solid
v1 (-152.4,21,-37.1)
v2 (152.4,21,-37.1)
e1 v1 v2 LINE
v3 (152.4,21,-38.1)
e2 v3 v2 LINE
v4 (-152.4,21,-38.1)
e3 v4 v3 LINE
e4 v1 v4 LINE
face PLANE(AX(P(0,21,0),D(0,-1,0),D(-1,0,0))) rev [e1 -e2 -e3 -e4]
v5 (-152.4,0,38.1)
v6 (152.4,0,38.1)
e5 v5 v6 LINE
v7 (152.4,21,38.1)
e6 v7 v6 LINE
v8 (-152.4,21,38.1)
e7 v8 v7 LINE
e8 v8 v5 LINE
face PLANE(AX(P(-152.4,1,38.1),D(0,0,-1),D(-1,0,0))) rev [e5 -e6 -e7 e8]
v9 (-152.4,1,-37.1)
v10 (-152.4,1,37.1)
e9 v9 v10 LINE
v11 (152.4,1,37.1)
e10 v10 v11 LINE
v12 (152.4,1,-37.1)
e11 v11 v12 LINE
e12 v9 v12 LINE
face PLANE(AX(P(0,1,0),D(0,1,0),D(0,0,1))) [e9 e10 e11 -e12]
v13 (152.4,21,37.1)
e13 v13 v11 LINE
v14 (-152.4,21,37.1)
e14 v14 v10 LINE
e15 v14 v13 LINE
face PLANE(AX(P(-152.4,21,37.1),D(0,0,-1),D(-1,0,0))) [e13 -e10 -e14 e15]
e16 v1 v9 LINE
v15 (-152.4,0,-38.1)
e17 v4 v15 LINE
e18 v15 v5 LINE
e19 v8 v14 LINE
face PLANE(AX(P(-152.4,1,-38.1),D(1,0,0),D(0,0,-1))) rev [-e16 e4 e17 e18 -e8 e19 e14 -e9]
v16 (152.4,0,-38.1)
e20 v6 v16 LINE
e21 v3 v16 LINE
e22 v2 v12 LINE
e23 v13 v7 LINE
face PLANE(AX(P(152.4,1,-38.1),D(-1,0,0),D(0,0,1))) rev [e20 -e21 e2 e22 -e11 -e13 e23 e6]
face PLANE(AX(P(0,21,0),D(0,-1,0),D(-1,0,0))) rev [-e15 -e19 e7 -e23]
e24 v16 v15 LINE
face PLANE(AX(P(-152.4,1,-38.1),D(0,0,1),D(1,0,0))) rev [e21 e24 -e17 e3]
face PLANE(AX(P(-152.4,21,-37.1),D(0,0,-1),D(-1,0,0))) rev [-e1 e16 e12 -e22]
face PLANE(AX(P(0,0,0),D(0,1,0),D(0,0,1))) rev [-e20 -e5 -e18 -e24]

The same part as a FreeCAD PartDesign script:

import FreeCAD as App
import Part
import Sketcher
Q = App.Units.Quantity


def add_polygon(sketch, points):
    """Adds a closed chain of lines whose ends are joined by coincident constraints."""
    first, n = sketch.GeometryCount, len(points)
    for a, b in zip(points, points[1:] + points[:1]):
        sketch.addGeometry(Part.LineSegment(App.Vector(*a, 0), App.Vector(*b, 0)), False)
    for i in range(n):
        sketch.addConstraint(Sketcher.Constraint("Coincident", first + i, 2, first + (i + 1) % n, 1))

doc = App.newDocument("Part")
params = doc.addObject("Spreadsheet::Sheet", "Params")
for row, (alias, value) in enumerate([
    ("sketch1_width", "304.8 mm"),
    ("sketch1_height", "76.2 mm"),
    ("pad1_length", "1 mm"),
    ("sketch2_height", "1 mm"),
    ("sketch2_width", "304.8 mm"),
    ("pad2_length", "20 mm"),
    ("sketch3_height", "1 mm"),
    ("sketch3_width", "304.8 mm"),
    ("pad3_length", "20 mm"),
], start=1):
    params.set(f"A{row}", alias)
    params.set(f"B{row}", "=" + value)
    params.setAlias(f"B{row}", alias)

body = doc.addObject("PartDesign::Body", "Body")

sketch1 = body.newObject("Sketcher::SketchObject", "Sketch")
sketch1.AttachmentSupport = (doc.getObject("XZ_Plane"), [""])
sketch1.MapMode = "FlatFace"
add_polygon(sketch1, [(-152.4, -38.1), (-152.4, 38.1), (152.4, 38.1), (152.4, -38.1)])
sketch1.addConstraint(Sketcher.Constraint("Vertical", 0))
sketch1.addConstraint(Sketcher.Constraint("Horizontal", 1))
sketch1.addConstraint(Sketcher.Constraint("Vertical", 2))
sketch1.addConstraint(Sketcher.Constraint("Horizontal", 3))
sketch1.addConstraint(Sketcher.Constraint("Symmetric", 0, 2, 2, 2, -1, 1))
sketch1.addConstraint(Sketcher.Constraint("DistanceX", 1, 1, 1, 2, Q("304.8 mm")))
sketch1.addConstraint(Sketcher.Constraint("DistanceY", 0, 1, 0, 2, Q("76.2 mm")))
sketch1.setExpression("Constraints[9]", "Params.sketch1_width")
sketch1.setExpression("Constraints[10]", "Params.sketch1_height")
pad1 = body.newObject("PartDesign::Pad", "Pad")
pad1.Profile = sketch1
pad1.setExpression("Length", "Params.pad1_length")
pad1.Reversed = True

sketch2 = body.newObject("Sketcher::SketchObject", "Sketch001")
sketch2.AttachmentSupport = (doc.getObject("XZ_Plane"), [""])
sketch2.MapMode = "FlatFace"
sketch2.AttachmentOffset = App.Placement(App.Vector(0, 0, -1), App.Rotation())
add_polygon(sketch2, [(-152.4, 37.1), (-152.4, 38.1), (152.4, 38.1), (152.4, 37.1)])
sketch2.addConstraint(Sketcher.Constraint("Vertical", 0))
sketch2.addConstraint(Sketcher.Constraint("Horizontal", 1))
sketch2.addConstraint(Sketcher.Constraint("Vertical", 2))
sketch2.addConstraint(Sketcher.Constraint("Horizontal", 3))
sketch2.addConstraint(Sketcher.Constraint("DistanceY", 0, 1, 0, 2, Q("1 mm")))
sketch2.addConstraint(Sketcher.Constraint("DistanceX", 1, 1, 1, 2, Q("304.8 mm")))
sketch2.addConstraint(Sketcher.Constraint("DistanceX", 0, 2, -1, 1, Q("152.4 mm")))
sketch2.addConstraint(Sketcher.Constraint("DistanceY", -1, 1, 0, 2, Q("38.1 mm")))
sketch2.setExpression("Constraints[8]", "Params.sketch2_height")
sketch2.setExpression("Constraints[9]", "Params.sketch2_width")
pad2 = body.newObject("PartDesign::Pad", "Pad001")
pad2.Profile = sketch2
pad2.setExpression("Length", "Params.pad2_length")
pad2.Reversed = True

sketch3 = body.newObject("Sketcher::SketchObject", "Sketch002")
sketch3.AttachmentSupport = (doc.getObject("XZ_Plane"), [""])
sketch3.MapMode = "FlatFace"
sketch3.AttachmentOffset = App.Placement(App.Vector(0, 0, -1), App.Rotation())
add_polygon(sketch3, [(-152.4, -38.1), (-152.4, -37.1), (152.4, -37.1), (152.4, -38.1)])
sketch3.addConstraint(Sketcher.Constraint("Vertical", 0))
sketch3.addConstraint(Sketcher.Constraint("Horizontal", 1))
sketch3.addConstraint(Sketcher.Constraint("Vertical", 2))
sketch3.addConstraint(Sketcher.Constraint("Horizontal", 3))
sketch3.addConstraint(Sketcher.Constraint("DistanceY", 0, 1, 0, 2, Q("1 mm")))
sketch3.addConstraint(Sketcher.Constraint("DistanceX", 1, 1, 1, 2, Q("304.8 mm")))
sketch3.addConstraint(Sketcher.Constraint("DistanceX", 0, 2, -1, 1, Q("152.4 mm")))
sketch3.addConstraint(Sketcher.Constraint("DistanceY", 0, 2, -1, 1, Q("37.1 mm")))
sketch3.setExpression("Constraints[8]", "Params.sketch3_height")
sketch3.setExpression("Constraints[9]", "Params.sketch3_width")
pad3 = body.newObject("PartDesign::Pad", "Pad002")
pad3.Profile = sketch3
pad3.setExpression("Length", "Params.pad3_length")
pad3.Reversed = True

doc.recompute()
